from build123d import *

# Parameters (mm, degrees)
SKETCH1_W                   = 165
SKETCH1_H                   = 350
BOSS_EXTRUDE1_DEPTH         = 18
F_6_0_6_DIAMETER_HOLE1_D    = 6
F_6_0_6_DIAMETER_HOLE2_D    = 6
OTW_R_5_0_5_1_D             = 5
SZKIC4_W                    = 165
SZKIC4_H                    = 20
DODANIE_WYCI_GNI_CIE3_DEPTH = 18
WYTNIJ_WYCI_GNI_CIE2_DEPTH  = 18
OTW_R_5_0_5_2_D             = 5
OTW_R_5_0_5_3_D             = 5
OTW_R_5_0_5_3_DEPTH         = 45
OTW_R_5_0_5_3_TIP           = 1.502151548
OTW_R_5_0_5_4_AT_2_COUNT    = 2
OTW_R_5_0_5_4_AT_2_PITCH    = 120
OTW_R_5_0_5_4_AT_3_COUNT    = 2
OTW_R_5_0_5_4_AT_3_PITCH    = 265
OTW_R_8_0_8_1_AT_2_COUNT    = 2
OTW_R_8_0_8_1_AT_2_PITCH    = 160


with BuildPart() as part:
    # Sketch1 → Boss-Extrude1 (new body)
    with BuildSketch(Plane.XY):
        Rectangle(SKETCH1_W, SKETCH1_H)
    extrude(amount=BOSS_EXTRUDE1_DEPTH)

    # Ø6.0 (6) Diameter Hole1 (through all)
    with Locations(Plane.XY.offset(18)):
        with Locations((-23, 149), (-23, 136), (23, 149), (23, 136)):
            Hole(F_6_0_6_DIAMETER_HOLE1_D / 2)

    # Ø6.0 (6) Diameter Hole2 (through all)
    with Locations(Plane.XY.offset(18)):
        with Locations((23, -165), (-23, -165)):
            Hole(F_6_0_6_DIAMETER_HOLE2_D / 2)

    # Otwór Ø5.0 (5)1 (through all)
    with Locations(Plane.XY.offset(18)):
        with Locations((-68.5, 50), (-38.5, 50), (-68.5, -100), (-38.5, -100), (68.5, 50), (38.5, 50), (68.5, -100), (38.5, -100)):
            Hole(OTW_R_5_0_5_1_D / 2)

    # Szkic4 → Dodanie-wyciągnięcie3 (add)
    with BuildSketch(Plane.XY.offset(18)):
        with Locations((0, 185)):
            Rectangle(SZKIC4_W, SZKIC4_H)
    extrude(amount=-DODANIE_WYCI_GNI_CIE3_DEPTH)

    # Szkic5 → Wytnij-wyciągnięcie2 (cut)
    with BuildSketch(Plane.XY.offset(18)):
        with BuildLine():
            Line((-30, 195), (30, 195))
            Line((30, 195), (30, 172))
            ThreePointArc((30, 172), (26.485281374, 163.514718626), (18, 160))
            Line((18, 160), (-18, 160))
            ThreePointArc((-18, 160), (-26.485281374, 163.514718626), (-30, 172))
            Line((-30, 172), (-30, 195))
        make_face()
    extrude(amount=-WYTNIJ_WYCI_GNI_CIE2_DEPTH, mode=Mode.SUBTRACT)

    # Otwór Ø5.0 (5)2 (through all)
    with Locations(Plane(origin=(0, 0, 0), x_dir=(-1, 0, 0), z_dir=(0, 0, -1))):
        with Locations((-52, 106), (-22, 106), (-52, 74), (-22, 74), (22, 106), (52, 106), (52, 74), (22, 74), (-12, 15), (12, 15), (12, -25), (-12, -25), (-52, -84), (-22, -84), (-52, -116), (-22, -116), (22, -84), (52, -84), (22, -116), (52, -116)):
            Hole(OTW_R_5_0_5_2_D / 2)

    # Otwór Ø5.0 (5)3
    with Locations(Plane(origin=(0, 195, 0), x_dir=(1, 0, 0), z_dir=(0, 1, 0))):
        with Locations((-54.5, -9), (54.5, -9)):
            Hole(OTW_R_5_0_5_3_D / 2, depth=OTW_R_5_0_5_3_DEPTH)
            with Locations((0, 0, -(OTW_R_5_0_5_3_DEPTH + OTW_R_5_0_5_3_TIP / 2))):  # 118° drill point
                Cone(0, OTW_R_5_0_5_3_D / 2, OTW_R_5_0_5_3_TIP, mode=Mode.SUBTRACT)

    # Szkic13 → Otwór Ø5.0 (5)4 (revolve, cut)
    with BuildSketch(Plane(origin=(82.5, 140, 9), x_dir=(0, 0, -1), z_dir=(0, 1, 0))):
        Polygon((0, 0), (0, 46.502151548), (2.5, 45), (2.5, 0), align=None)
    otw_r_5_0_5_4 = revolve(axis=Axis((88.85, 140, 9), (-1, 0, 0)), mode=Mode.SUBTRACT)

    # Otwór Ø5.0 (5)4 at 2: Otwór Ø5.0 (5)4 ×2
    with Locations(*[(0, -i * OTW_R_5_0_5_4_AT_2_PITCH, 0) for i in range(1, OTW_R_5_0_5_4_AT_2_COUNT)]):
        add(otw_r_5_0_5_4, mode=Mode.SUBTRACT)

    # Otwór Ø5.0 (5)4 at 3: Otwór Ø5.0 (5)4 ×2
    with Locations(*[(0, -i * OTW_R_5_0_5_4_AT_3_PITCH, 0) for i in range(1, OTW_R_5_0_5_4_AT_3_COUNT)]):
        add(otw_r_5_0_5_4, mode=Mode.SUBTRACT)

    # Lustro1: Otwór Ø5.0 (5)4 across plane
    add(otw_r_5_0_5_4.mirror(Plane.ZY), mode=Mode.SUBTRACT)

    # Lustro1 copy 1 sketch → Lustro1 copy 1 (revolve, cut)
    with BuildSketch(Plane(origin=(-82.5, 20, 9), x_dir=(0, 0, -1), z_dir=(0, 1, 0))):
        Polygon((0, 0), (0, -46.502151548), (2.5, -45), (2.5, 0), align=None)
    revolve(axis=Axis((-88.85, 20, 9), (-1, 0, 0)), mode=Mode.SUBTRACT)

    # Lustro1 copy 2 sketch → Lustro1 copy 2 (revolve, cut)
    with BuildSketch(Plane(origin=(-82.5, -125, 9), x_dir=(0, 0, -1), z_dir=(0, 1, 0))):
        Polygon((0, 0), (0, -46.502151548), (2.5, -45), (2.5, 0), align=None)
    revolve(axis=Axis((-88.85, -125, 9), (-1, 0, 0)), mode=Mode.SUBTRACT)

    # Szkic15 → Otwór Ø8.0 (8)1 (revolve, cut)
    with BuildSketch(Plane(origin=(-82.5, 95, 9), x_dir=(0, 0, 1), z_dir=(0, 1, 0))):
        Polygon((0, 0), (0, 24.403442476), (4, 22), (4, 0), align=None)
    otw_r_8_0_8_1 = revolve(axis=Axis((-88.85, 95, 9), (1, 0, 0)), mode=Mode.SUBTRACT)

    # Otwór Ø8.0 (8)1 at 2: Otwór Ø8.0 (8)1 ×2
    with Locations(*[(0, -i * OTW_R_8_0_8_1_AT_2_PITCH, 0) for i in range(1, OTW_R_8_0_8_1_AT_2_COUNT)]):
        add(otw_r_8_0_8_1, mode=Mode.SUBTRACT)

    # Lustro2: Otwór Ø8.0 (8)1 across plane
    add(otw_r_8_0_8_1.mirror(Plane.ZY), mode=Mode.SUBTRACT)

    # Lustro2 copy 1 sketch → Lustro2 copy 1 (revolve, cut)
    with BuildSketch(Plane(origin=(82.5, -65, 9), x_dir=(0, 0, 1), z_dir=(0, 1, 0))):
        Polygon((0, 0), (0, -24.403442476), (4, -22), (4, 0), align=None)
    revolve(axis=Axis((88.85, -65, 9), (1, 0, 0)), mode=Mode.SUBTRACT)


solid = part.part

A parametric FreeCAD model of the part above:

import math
import FreeCAD as App
import Part
import Sketcher
from FreeCAD import Vector
Q = App.Units.Quantity

doc = App.newDocument("Part")
body = doc.addObject("PartDesign::Body", "Body")

# Sketch on XY plane
sketch1 = body.newObject("Sketcher::SketchObject", "Sketch")
sketch1.AttachmentSupport = (doc.getObject("XY_Plane"), [""])
sketch1.MapMode = "FlatFace"
sketch1.addGeometry([
    Part.LineSegment(Vector(-82, 175, 0), Vector(-82, -175, 0)),
    Part.LineSegment(Vector(-82, -175, 0), Vector(82, -175, 0)),
    Part.LineSegment(Vector(82, -175, 0), Vector(82, 175, 0)),
    Part.LineSegment(Vector(82, 175, 0), Vector(-82, 175, 0)),
], False)
sketch1.addConstraint([
    Sketcher.Constraint("Coincident", 0, 2, 1, 1),
    Sketcher.Constraint("Coincident", 1, 2, 2, 1),
    Sketcher.Constraint("Coincident", 2, 2, 3, 1),
    Sketcher.Constraint("Coincident", 3, 2, 0, 1),
    Sketcher.Constraint("Vertical", 0),
    Sketcher.Constraint("Horizontal", 1),
    Sketcher.Constraint("Vertical", 2),
    Sketcher.Constraint("Horizontal", 3),
    Sketcher.Constraint("Symmetric", 0, 2, 2, 2, -1, 1),
    Sketcher.Constraint("DistanceX", 1, 1, 1, 2, 165.0),
    Sketcher.Constraint("DistanceY", 0, 2, 0, 1, 350.0),
])
pad1 = body.newObject("PartDesign::Pad", "Pad")
pad1.Profile = sketch1
pad1.Length = 18

# Sketch on XY plane
sketch2 = body.newObject("Sketcher::SketchObject", "Sketch001")
sketch2.AttachmentSupport = (doc.getObject("XY_Plane"), [""])
sketch2.MapMode = "FlatFace"
sketch2.AttachmentOffset = App.Placement(Vector(0, 0, 18), App.Rotation())
sketch2.addGeometry([
    Part.Circle(Vector(-23, 149, 0), Vector(0, 0, 1), 3),
    Part.Circle(Vector(-23, 136, 0), Vector(0, 0, 1), 3),
    Part.Circle(Vector(23, 149, 0), Vector(0, 0, 1), 3),
    Part.Circle(Vector(23, 136, 0), Vector(0, 0, 1), 3),
], False)
sketch2.addConstraint([
    Sketcher.Constraint("Equal", 0, 1),
    Sketcher.Constraint("Equal", 1, 2),
    Sketcher.Constraint("Equal", 2, 3),
    Sketcher.Constraint("Symmetric", 0, 3, 2, 3, -2),
    Sketcher.Constraint("Symmetric", 1, 3, 3, 3, -2),
    Sketcher.Constraint("Vertical", 0, 3, 1, 3),
    Sketcher.Constraint("Diameter", 0, 6.0),
    Sketcher.Constraint("DistanceX", 0, 3, -1, 1, 23.0),
    Sketcher.Constraint("DistanceY", -1, 1, 0, 3, 149.0),
    Sketcher.Constraint("DistanceY", -1, 1, 1, 3, 136.0),
])
doc.recompute()
hole = body.newObject("PartDesign::Hole", "Hole")
hole.Profile = sketch2
hole.ThreadType = "None"
hole.Diameter = 6
hole.DepthType = "ThroughAll"

# Sketch on XY plane
sketch3 = body.newObject("Sketcher::SketchObject", "Sketch002")
sketch3.AttachmentSupport = (doc.getObject("XY_Plane"), [""])
sketch3.MapMode = "FlatFace"
sketch3.AttachmentOffset = App.Placement(Vector(0, 0, 18), App.Rotation())
sketch3.addGeometry([
    Part.Circle(Vector(23, -165, 0), Vector(0, 0, 1), 3),
    Part.Circle(Vector(-23, -165, 0), Vector(0, 0, 1), 3),
], False)
sketch3.addConstraint([
    Sketcher.Constraint("Equal", 0, 1),
    Sketcher.Constraint("Symmetric", 0, 3, 1, 3, -2),
    Sketcher.Constraint("Diameter", 0, 6.0),
    Sketcher.Constraint("DistanceX", -1, 1, 0, 3, 23.0),
    Sketcher.Constraint("DistanceY", 0, 3, -1, 1, 165.0),
])
doc.recompute()
hole2 = body.newObject("PartDesign::Hole", "Hole001")
hole2.Profile = sketch3
hole2.ThreadType = "None"
hole2.Diameter = 6
hole2.DepthType = "ThroughAll"

# Sketch on XY plane
sketch4 = body.newObject("Sketcher::SketchObject", "Sketch003")
sketch4.AttachmentSupport = (doc.getObject("XY_Plane"), [""])
sketch4.MapMode = "FlatFace"
sketch4.AttachmentOffset = App.Placement(Vector(0, 0, 18), App.Rotation())
sketch4.addGeometry([
    Part.Circle(Vector(-68.5, 50, 0), Vector(0, 0, 1), 2.5),  # 0
    Part.Circle(Vector(-38.5, 50, 0), Vector(0, 0, 1), 2.5),  # 1
    Part.Circle(Vector(-68.5, -100, 0), Vector(0, 0, 1), 2.5),  # 2
    Part.Circle(Vector(-38.5, -100, 0), Vector(0, 0, 1), 2.5),  # 3
    Part.Circle(Vector(68.5, 50, 0), Vector(0, 0, 1), 2.5),  # 4
    Part.Circle(Vector(38.5, 50, 0), Vector(0, 0, 1), 2.5),  # 5
    Part.Circle(Vector(68.5, -100, 0), Vector(0, 0, 1), 2.5),  # 6
    Part.Circle(Vector(38.5, -100, 0), Vector(0, 0, 1), 2.5),  # 7
], False)
sketch4.addConstraint([
    Sketcher.Constraint("Equal", 0, 1),
    Sketcher.Constraint("Equal", 1, 2),
    Sketcher.Constraint("Equal", 2, 3),
    Sketcher.Constraint("Equal", 3, 4),
    Sketcher.Constraint("Equal", 4, 5),
    Sketcher.Constraint("Equal", 5, 6),
    Sketcher.Constraint("Equal", 6, 7),
    Sketcher.Constraint("Symmetric", 0, 3, 4, 3, -2),
    Sketcher.Constraint("Symmetric", 1, 3, 5, 3, -2),
    Sketcher.Constraint("Symmetric", 2, 3, 6, 3, -2),
    Sketcher.Constraint("Symmetric", 3, 3, 7, 3, -2),
    Sketcher.Constraint("Horizontal", 0, 3, 1, 3),
    Sketcher.Constraint("Horizontal", 2, 3, 3, 3),
    Sketcher.Constraint("Vertical", 0, 3, 2, 3),
    Sketcher.Constraint("Vertical", 1, 3, 3, 3),
    Sketcher.Constraint("Diameter", 0, 5.0),
    Sketcher.Constraint("DistanceY", -1, 1, 0, 3, 50.0),
    Sketcher.Constraint("DistanceY", 2, 3, -1, 1, 100.0),
    Sketcher.Constraint("DistanceX", 0, 3, 1, 3, 30.0),
    Sketcher.Constraint("DistanceX", 1, 3, 4, 3, 107.0),
])
doc.recompute()
hole3 = body.newObject("PartDesign::Hole", "Hole002")
hole3.Profile = sketch4
hole3.ThreadType = "None"
hole3.Diameter = 5
hole3.DepthType = "ThroughAll"

# Sketch on XY plane
sketch5 = body.newObject("Sketcher::SketchObject", "Sketch004")
sketch5.AttachmentSupport = (doc.getObject("XY_Plane"), [""])
sketch5.MapMode = "FlatFace"
sketch5.AttachmentOffset = App.Placement(Vector(0, 0, 18), App.Rotation())
sketch5.addGeometry([
    Part.LineSegment(Vector(-82, 195, 0), Vector(-82, 175, 0)),
    Part.LineSegment(Vector(-82, 175, 0), Vector(82, 175, 0)),
    Part.LineSegment(Vector(82, 175, 0), Vector(82, 195, 0)),
    Part.LineSegment(Vector(82, 195, 0), Vector(-82, 195, 0)),
], False)
sketch5.addConstraint([
    Sketcher.Constraint("Coincident", 0, 2, 1, 1),
    Sketcher.Constraint("Coincident", 1, 2, 2, 1),
    Sketcher.Constraint("Coincident", 2, 2, 3, 1),
    Sketcher.Constraint("Coincident", 3, 2, 0, 1),
    Sketcher.Constraint("Vertical", 0),
    Sketcher.Constraint("Horizontal", 1),
    Sketcher.Constraint("Vertical", 2),
    Sketcher.Constraint("Horizontal", 3),
    Sketcher.Constraint("DistanceX", 1, 1, 1, 2, 165.0),
    Sketcher.Constraint("DistanceY", 0, 2, 0, 1, 20.0),
    Sketcher.Constraint("DistanceY", -1, 1, 0, 2, 175.0),
    Sketcher.Constraint("DistanceX", 0, 2, -1, 1, 82.5),
])
pad2 = body.newObject("PartDesign::Pad", "Pad001")
pad2.Profile = sketch5
pad2.Length = 18
pad2.Reversed = True

# Sketch on XY plane
sketch6 = body.newObject("Sketcher::SketchObject", "Sketch005")
sketch6.AttachmentSupport = (doc.getObject("XY_Plane"), [""])
sketch6.MapMode = "FlatFace"
sketch6.AttachmentOffset = App.Placement(Vector(0, 0, 18), App.Rotation())
sketch6.addGeometry([
    Part.LineSegment(Vector(30, 195, 0), Vector(-30, 195, 0)),  # 0
    Part.LineSegment(Vector(-30, 195, 0), Vector(-30, 172, 0)),  # 1
    Part.ArcOfCircle(Part.Circle(Vector(-18, 172, 0), Vector(0, 0, 1), 12), math.radians(-180), math.radians(-90)),  # 2
    Part.LineSegment(Vector(-18, 160, 0), Vector(18, 160, 0)),  # 3
    Part.ArcOfCircle(Part.Circle(Vector(18, 172, 0), Vector(0, 0, 1), 12), math.radians(-90), math.radians(0)),  # 4
    Part.LineSegment(Vector(30, 172, 0), Vector(30, 195, 0)),  # 5
], False)
sketch6.addConstraint([
    Sketcher.Constraint("Coincident", 0, 2, 1, 1),
    Sketcher.Constraint("Tangent", 1, 2, 2, 1),
    Sketcher.Constraint("Tangent", 2, 2, 3, 1),
    Sketcher.Constraint("Tangent", 3, 2, 4, 1),
    Sketcher.Constraint("Tangent", 4, 2, 5, 1),
    Sketcher.Constraint("Coincident", 5, 2, 0, 1),
    Sketcher.Constraint("Horizontal", 0),
    Sketcher.Constraint("Vertical", 1),
    Sketcher.Constraint("Horizontal", 3),
    Sketcher.Constraint("Vertical", 5),
    Sketcher.Constraint("Equal", 2, 4),
    Sketcher.Constraint("Radius", 2, 12.0),
    Sketcher.Constraint("DistanceX", 0, 2, 0, 1, 60.0),
    Sketcher.Constraint("DistanceY", 1, 2, 1, 1, 23.0),
    Sketcher.Constraint("DistanceX", 2, 3, -1, 1, 18.0),
    Sketcher.Constraint("DistanceY", -1, 1, 2, 3, 172.0),
])
pocket1 = body.newObject("PartDesign::Pocket", "Pocket")
pocket1.Profile = sketch6
pocket1.Length = 18

# Sketch on XY plane
sketch7 = body.newObject("Sketcher::SketchObject", "Sketch006")
sketch7.AttachmentSupport = (doc.getObject("XY_Plane"), [""])
sketch7.MapMode = "FlatFace"
sketch7.addGeometry([
    Part.Circle(Vector(52, 106, 0), Vector(0, 0, 1), 2.5),  # 0
    Part.Circle(Vector(22, 106, 0), Vector(0, 0, 1), 2.5),  # 1
    Part.Circle(Vector(52, 74, 0), Vector(0, 0, 1), 2.5),  # 2
    Part.Circle(Vector(22, 74, 0), Vector(0, 0, 1), 2.5),  # 3
    Part.Circle(Vector(-22, 106, 0), Vector(0, 0, 1), 2.5),  # 4
    Part.Circle(Vector(-52, 106, 0), Vector(0, 0, 1), 2.5),  # 5
    Part.Circle(Vector(-52, 74, 0), Vector(0, 0, 1), 2.5),  # 6
    Part.Circle(Vector(-22, 74, 0), Vector(0, 0, 1), 2.5),  # 7
    Part.Circle(Vector(12, 15, 0), Vector(0, 0, 1), 2.5),  # 8
    Part.Circle(Vector(-12, 15, 0), Vector(0, 0, 1), 2.5),  # 9
    Part.Circle(Vector(-12, -25, 0), Vector(0, 0, 1), 2.5),  # 10
    Part.Circle(Vector(12, -25, 0), Vector(0, 0, 1), 2.5),  # 11
    Part.Circle(Vector(52, -84, 0), Vector(0, 0, 1), 2.5),  # 12
    Part.Circle(Vector(22, -84, 0), Vector(0, 0, 1), 2.5),  # 13
    Part.Circle(Vector(52, -116, 0), Vector(0, 0, 1), 2.5),  # 14
    Part.Circle(Vector(22, -116, 0), Vector(0, 0, 1), 2.5),  # 15
    Part.Circle(Vector(-22, -84, 0), Vector(0, 0, 1), 2.5),  # 16
    Part.Circle(Vector(-52, -84, 0), Vector(0, 0, 1), 2.5),  # 17
    Part.Circle(Vector(-22, -116, 0), Vector(0, 0, 1), 2.5),  # 18
    Part.Circle(Vector(-52, -116, 0), Vector(0, 0, 1), 2.5),  # 19
], False)
sketch7.addConstraint([
    Sketcher.Constraint("Equal", 0, 1),
    Sketcher.Constraint("Equal", 1, 2),
    Sketcher.Constraint("Equal", 2, 3),
    Sketcher.Constraint("Equal", 3, 4),
    Sketcher.Constraint("Equal", 4, 5),
    Sketcher.Constraint("Equal", 5, 6),
    Sketcher.Constraint("Equal", 6, 7),
    Sketcher.Constraint("Equal", 7, 8),
    Sketcher.Constraint("Equal", 8, 9),
    Sketcher.Constraint("Equal", 9, 10),
    Sketcher.Constraint("Equal", 10, 11),
    Sketcher.Constraint("Equal", 11, 12),
    Sketcher.Constraint("Equal", 12, 13),
    Sketcher.Constraint("Equal", 13, 14),
    Sketcher.Constraint("Equal", 14, 15),
    Sketcher.Constraint("Equal", 15, 16),
    Sketcher.Constraint("Equal", 16, 17),
    Sketcher.Constraint("Equal", 17, 18),
    Sketcher.Constraint("Equal", 18, 19),
    Sketcher.Constraint("Symmetric", 1, 3, 4, 3, -2),
    Sketcher.Constraint("Symmetric", 0, 3, 5, 3, -2),
    Sketcher.Constraint("Symmetric", 2, 3, 6, 3, -2),
    Sketcher.Constraint("Symmetric", 3, 3, 7, 3, -2),
    Sketcher.Constraint("Symmetric", 8, 3, 9, 3, -2),
    Sketcher.Constraint("Symmetric", 10, 3, 11, 3, -2),
    Sketcher.Constraint("Symmetric", 13, 3, 16, 3, -2),
    Sketcher.Constraint("Symmetric", 12, 3, 17, 3, -2),
    Sketcher.Constraint("Symmetric", 15, 3, 18, 3, -2),
    Sketcher.Constraint("Symmetric", 14, 3, 19, 3, -2),
    Sketcher.Constraint("Horizontal", 0, 3, 1, 3),
    Sketcher.Constraint("Horizontal", 2, 3, 3, 3),
    Sketcher.Constraint("Horizontal", 12, 3, 13, 3),
    Sketcher.Constraint("Horizontal", 14, 3, 15, 3),
    Sketcher.Constraint("Vertical", 0, 3, 2, 3),
    Sketcher.Constraint("Vertical", 1, 3, 3, 3),
    Sketcher.Constraint("Vertical", 9, 3, 10, 3),
    Sketcher.Constraint("Vertical", 2, 3, 12, 3),
    Sketcher.Constraint("Vertical", 3, 3, 13, 3),
    Sketcher.Constraint("Vertical", 12, 3, 14, 3),
    Sketcher.Constraint("Vertical", 13, 3, 15, 3),
    Sketcher.Constraint("Diameter", 0, 5.0),
    Sketcher.Constraint("DistanceX", -1, 1, 0, 3, 52.0),
    Sketcher.Constraint("DistanceY", -1, 1, 0, 3, 106.0),
    Sketcher.Constraint("DistanceX", -1, 1, 1, 3, 22.0),
    Sketcher.Constraint("DistanceY", -1, 1, 2, 3, 74.0),
    Sketcher.Constraint("DistanceX", -1, 1, 8, 3, 12.0),
    Sketcher.Constraint("DistanceY", -1, 1, 8, 3, 15.0),
    Sketcher.Constraint("DistanceY", 10, 3, -1, 1, 25.0),
    Sketcher.Constraint("DistanceY", 12, 3, -1, 1, 84.0),
    Sketcher.Constraint("DistanceY", 14, 3, -1, 1, 116.0),
])
doc.recompute()
hole4 = body.newObject("PartDesign::Hole", "Hole003")
hole4.Profile = sketch7
hole4.ThreadType = "None"
hole4.Diameter = 5
hole4.DepthType = "ThroughAll"
hole4.Reversed = True

# Sketch on XZ plane
sketch8 = body.newObject("Sketcher::SketchObject", "Sketch007")
sketch8.AttachmentSupport = (doc.getObject("XZ_Plane"), [""])
sketch8.MapMode = "FlatFace"
sketch8.AttachmentOffset = App.Placement(Vector(0, 0, -195), App.Rotation())
sketch8.addGeometry([
    Part.Circle(Vector(-54.5, 9, 0), Vector(0, 0, 1), 2.5),
    Part.Circle(Vector(54.5, 9, 0), Vector(0, 0, 1), 2.5),
], False)
sketch8.addConstraint([
    Sketcher.Constraint("Equal", 0, 1),
    Sketcher.Constraint("Symmetric", 0, 3, 1, 3, -2),
    Sketcher.Constraint("Diameter", 0, 5.0),
    Sketcher.Constraint("DistanceY", -1, 1, 0, 3, 9.0),
    Sketcher.Constraint("DistanceX", 0, 3, 1, 3, 109.0),
])
doc.recompute()
hole5 = body.newObject("PartDesign::Hole", "Hole004")
hole5.Profile = sketch8
hole5.ThreadType = "None"
hole5.Diameter = 5
hole5.DepthType = "Dimension"
hole5.Depth = 45
hole5.DrillPoint = "Angled"
hole5.DrillPointAngle = 118
hole5.Reversed = True

# Sketch on XZ plane
sketch9 = body.newObject("Sketcher::SketchObject", "Sketch008")
sketch9.AttachmentSupport = (doc.getObject("XZ_Plane"), [""])
sketch9.MapMode = "FlatFace"
sketch9.AttachmentOffset = App.Placement(Vector(0, 0, -140), App.Rotation())
sketch9.addGeometry([
    Part.LineSegment(Vector(36, 9, 0), Vector(82.5, 9, 0)),
    Part.LineSegment(Vector(82.5, 9, 0), Vector(82.5, 6.5, 0)),
    Part.LineSegment(Vector(82.5, 6.5, 0), Vector(37.5, 6.5, 0)),
    Part.LineSegment(Vector(37.5, 6.5, 0), Vector(36, 9, 0)),
], False)
sketch9.addGeometry(Part.LineSegment(Vector(82.5, 9, 0), Vector(36, 9, 0)), True)  # axis
sketch9.addConstraint([
    Sketcher.Constraint("Coincident", 0, 2, 1, 1),
    Sketcher.Constraint("Coincident", 1, 2, 2, 1),
    Sketcher.Constraint("Coincident", 2, 2, 3, 1),
    Sketcher.Constraint("Coincident", 3, 2, 0, 1),
    Sketcher.Constraint("Horizontal", 0),
    Sketcher.Constraint("Vertical", 1),
    Sketcher.Constraint("Horizontal", 2),
    Sketcher.Constraint("Horizontal", 4),
    Sketcher.Constraint("Coincident", 4, 1, 0, 2),
    Sketcher.Constraint("Equal", 0, 4),
    Sketcher.Constraint("DistanceX", 2, 2, 2, 1, 45.0),
    Sketcher.Constraint("Angle", 3, Q("121 deg")),
    Sketcher.Constraint("DistanceY", 1, 2, 1, 1, 2.5),
    Sketcher.Constraint("DistanceY", -1, 1, 0, 2, 9.0),
    Sketcher.Constraint("DistanceX", -1, 1, 0, 2, 82.5),
])
groove = body.newObject("PartDesign::Groove", "Groove")
groove.Profile = sketch9
groove.ReferenceAxis = (sketch9, ["Axis0"])
groove.Angle = 360
doc.recompute()

linearpattern = body.newObject("PartDesign::LinearPattern", "LinearPattern")
linearpattern.Originals = [groove]
linearpattern.Direction = (doc.getObject("Y_Axis"), [""])
linearpattern.Mode = "offset"
linearpattern.Offset = 120
linearpattern.Occurrences = 2
linearpattern.Reversed = True
body.Tip = linearpattern
doc.recompute()

linearpattern2 = body.newObject("PartDesign::LinearPattern", "LinearPattern001")
linearpattern2.Originals = [groove]
linearpattern2.Direction = (doc.getObject("Y_Axis"), [""])
linearpattern2.Mode = "offset"
linearpattern2.Offset = 265
linearpattern2.Occurrences = 2
linearpattern2.Reversed = True
body.Tip = linearpattern2
doc.recompute()

mirrored = body.newObject("PartDesign::Mirrored", "Mirrored")
mirrored.Originals = [groove]
mirrored.MirrorPlane = (doc.getObject("YZ_Plane"), [""])
body.Tip = mirrored

# Sketch on XZ plane
sketch10 = body.newObject("Sketcher::SketchObject", "Sketch009")
sketch10.AttachmentSupport = (doc.getObject("XZ_Plane"), [""])
sketch10.MapMode = "FlatFace"
sketch10.AttachmentOffset = App.Placement(Vector(0, 0, -20), App.Rotation())
sketch10.addGeometry([
    Part.LineSegment(Vector(-82.5, 9, 0), Vector(-36, 9, 0)),
    Part.LineSegment(Vector(-36, 9, 0), Vector(-37.5, 6.5, 0)),
    Part.LineSegment(Vector(-37.5, 6.5, 0), Vector(-82.5, 6.5, 0)),
    Part.LineSegment(Vector(-82.5, 6.5, 0), Vector(-82.5, 9, 0)),
], False)
sketch10.addGeometry(Part.LineSegment(Vector(-36, 9, 0), Vector(-82.5, 9, 0)), True)  # axis
sketch10.addConstraint([
    Sketcher.Constraint("Coincident", 0, 2, 1, 1),
    Sketcher.Constraint("Coincident", 1, 2, 2, 1),
    Sketcher.Constraint("Coincident", 2, 2, 3, 1),
    Sketcher.Constraint("Coincident", 3, 2, 0, 1),
    Sketcher.Constraint("Horizontal", 0),
    Sketcher.Constraint("Horizontal", 2),
    Sketcher.Constraint("Vertical", 3),
    Sketcher.Constraint("Horizontal", 4),
    Sketcher.Constraint("Coincident", 4, 1, 0, 2),
    Sketcher.Constraint("Vertical", 2, 2, 4, 2),
    Sketcher.Constraint("DistanceX", 2, 2, 2, 1, 45.0),
    Sketcher.Constraint("Angle", 1, Q("-121 deg")),
    Sketcher.Constraint("DistanceY", 3, 1, 3, 2, 2.5),
    Sketcher.Constraint("DistanceY", -1, 1, 0, 2, 9.0),
    Sketcher.Constraint("DistanceX", 1, 2, -1, 1, 37.5),
])
groove2 = body.newObject("PartDesign::Groove", "Groove001")
groove2.Profile = sketch10
groove2.ReferenceAxis = (sketch10, ["Axis0"])
groove2.Angle = 360

# Sketch on XZ plane
sketch11 = body.newObject("Sketcher::SketchObject", "Sketch010")
sketch11.AttachmentSupport = (doc.getObject("XZ_Plane"), [""])
sketch11.MapMode = "FlatFace"
sketch11.AttachmentOffset = App.Placement(Vector(0, 0, 125), App.Rotation())
sketch11.addGeometry([
    Part.LineSegment(Vector(-82.5, 9, 0), Vector(-36, 9, 0)),
    Part.LineSegment(Vector(-36, 9, 0), Vector(-37.5, 6.5, 0)),
    Part.LineSegment(Vector(-37.5, 6.5, 0), Vector(-82.5, 6.5, 0)),
    Part.LineSegment(Vector(-82.5, 6.5, 0), Vector(-82.5, 9, 0)),
], False)
sketch11.addGeometry(Part.LineSegment(Vector(-36, 9, 0), Vector(-82.5, 9, 0)), True)  # axis
sketch11.addConstraint([
    Sketcher.Constraint("Coincident", 0, 2, 1, 1),
    Sketcher.Constraint("Coincident", 1, 2, 2, 1),
    Sketcher.Constraint("Coincident", 2, 2, 3, 1),
    Sketcher.Constraint("Coincident", 3, 2, 0, 1),
    Sketcher.Constraint("Horizontal", 0),
    Sketcher.Constraint("Horizontal", 2),
    Sketcher.Constraint("Vertical", 3),
    Sketcher.Constraint("Horizontal", 4),
    Sketcher.Constraint("Coincident", 4, 1, 0, 2),
    Sketcher.Constraint("Vertical", 2, 2, 4, 2),
    Sketcher.Constraint("DistanceX", 2, 2, 2, 1, 45.0),
    Sketcher.Constraint("Angle", 1, Q("-121 deg")),
    Sketcher.Constraint("DistanceY", 3, 1, 3, 2, 2.5),
    Sketcher.Constraint("DistanceY", -1, 1, 0, 2, 9.0),
    Sketcher.Constraint("DistanceX", 1, 2, -1, 1, 37.5),
])
groove3 = body.newObject("PartDesign::Groove", "Groove002")
groove3.Profile = sketch11
groove3.ReferenceAxis = (sketch11, ["Axis0"])
groove3.Angle = 360

# Sketch on XZ plane
sketch12 = body.newObject("Sketcher::SketchObject", "Sketch011")
sketch12.AttachmentSupport = (doc.getObject("XZ_Plane"), [""])
sketch12.MapMode = "FlatFace"
sketch12.AttachmentOffset = App.Placement(Vector(0, 0, -95), App.Rotation())
sketch12.addGeometry([
    Part.LineSegment(Vector(-58.1, 9, 0), Vector(-82.5, 9, 0)),
    Part.LineSegment(Vector(-82.5, 9, 0), Vector(-82.5, 13, 0)),
    Part.LineSegment(Vector(-82.5, 13, 0), Vector(-60.5, 13, 0)),
    Part.LineSegment(Vector(-60.5, 13, 0), Vector(-58.1, 9, 0)),
], False)
sketch12.addGeometry(Part.LineSegment(Vector(-82.5, 9, 0), Vector(-58.1, 9, 0)), True)  # axis
sketch12.addConstraint([
    Sketcher.Constraint("Coincident", 0, 2, 1, 1),
    Sketcher.Constraint("Coincident", 1, 2, 2, 1),
    Sketcher.Constraint("Coincident", 2, 2, 3, 1),
    Sketcher.Constraint("Coincident", 3, 2, 0, 1),
    Sketcher.Constraint("Horizontal", 0),
    Sketcher.Constraint("Vertical", 1),
    Sketcher.Constraint("Horizontal", 2),
    Sketcher.Constraint("Horizontal", 4),
    Sketcher.Constraint("Coincident", 4, 1, 0, 2),
    Sketcher.Constraint("Equal", 0, 4),
    Sketcher.Constraint("DistanceX", 2, 1, 2, 2, 22.0),
    Sketcher.Constraint("DistanceY", 1, 1, 1, 2, 4.0),
    Sketcher.Constraint("Angle", 3, Q("-59 deg")),
    Sketcher.Constraint("DistanceY", -1, 1, 0, 2, 9.0),
    Sketcher.Constraint("DistanceX", 0, 2, -1, 1, 82.5),
])
groove4 = body.newObject("PartDesign::Groove", "Groove003")
groove4.Profile = sketch12
groove4.ReferenceAxis = (sketch12, ["Axis0"])
groove4.Angle = 360
doc.recompute()

linearpattern3 = body.newObject("PartDesign::LinearPattern", "LinearPattern002")
linearpattern3.Originals = [groove4]
linearpattern3.Direction = (doc.getObject("Y_Axis"), [""])
linearpattern3.Mode = "offset"
linearpattern3.Offset = 160
linearpattern3.Occurrences = 2
linearpattern3.Reversed = True
body.Tip = linearpattern3
doc.recompute()

mirrored2 = body.newObject("PartDesign::Mirrored", "Mirrored001")
mirrored2.Originals = [groove4]
mirrored2.MirrorPlane = (doc.getObject("YZ_Plane"), [""])
body.Tip = mirrored2

# Sketch on XZ plane
sketch13 = body.newObject("Sketcher::SketchObject", "Sketch012")
sketch13.AttachmentSupport = (doc.getObject("XZ_Plane"), [""])
sketch13.MapMode = "FlatFace"
sketch13.AttachmentOffset = App.Placement(Vector(0, 0, 65), App.Rotation())
sketch13.addGeometry([
    Part.LineSegment(Vector(82.5, 9, 0), Vector(58.1, 9, 0)),
    Part.LineSegment(Vector(58.1, 9, 0), Vector(60.5, 13, 0)),
    Part.LineSegment(Vector(60.5, 13, 0), Vector(82.5, 13, 0)),
    Part.LineSegment(Vector(82.5, 13, 0), Vector(82.5, 9, 0)),
], False)
sketch13.addGeometry(Part.LineSegment(Vector(58.1, 9, 0), Vector(82.5, 9, 0)), True)  # axis
sketch13.addConstraint([
    Sketcher.Constraint("Coincident", 0, 2, 1, 1),
    Sketcher.Constraint("Coincident", 1, 2, 2, 1),
    Sketcher.Constraint("Coincident", 2, 2, 3, 1),
    Sketcher.Constraint("Coincident", 3, 2, 0, 1),
    Sketcher.Constraint("Horizontal", 0),
    Sketcher.Constraint("Horizontal", 2),
    Sketcher.Constraint("Vertical", 3),
    Sketcher.Constraint("Horizontal", 4),
    Sketcher.Constraint("Coincident", 4, 1, 0, 2),
    Sketcher.Constraint("Vertical", 2, 2, 4, 2),
    Sketcher.Constraint("DistanceX", 2, 1, 2, 2, 22.0),
    Sketcher.Constraint("DistanceY", 3, 2, 3, 1, 4.0),
    Sketcher.Constraint("Angle", 1, Q("59 deg")),
    Sketcher.Constraint("DistanceY", -1, 1, 0, 2, 9.0),
    Sketcher.Constraint("DistanceX", -1, 1, 1, 2, 60.5),
])
groove5 = body.newObject("PartDesign::Groove", "Groove004")
groove5.Profile = sketch13
groove5.ReferenceAxis = (sketch13, ["Axis0"])
groove5.Angle = 360

doc.recompute()
